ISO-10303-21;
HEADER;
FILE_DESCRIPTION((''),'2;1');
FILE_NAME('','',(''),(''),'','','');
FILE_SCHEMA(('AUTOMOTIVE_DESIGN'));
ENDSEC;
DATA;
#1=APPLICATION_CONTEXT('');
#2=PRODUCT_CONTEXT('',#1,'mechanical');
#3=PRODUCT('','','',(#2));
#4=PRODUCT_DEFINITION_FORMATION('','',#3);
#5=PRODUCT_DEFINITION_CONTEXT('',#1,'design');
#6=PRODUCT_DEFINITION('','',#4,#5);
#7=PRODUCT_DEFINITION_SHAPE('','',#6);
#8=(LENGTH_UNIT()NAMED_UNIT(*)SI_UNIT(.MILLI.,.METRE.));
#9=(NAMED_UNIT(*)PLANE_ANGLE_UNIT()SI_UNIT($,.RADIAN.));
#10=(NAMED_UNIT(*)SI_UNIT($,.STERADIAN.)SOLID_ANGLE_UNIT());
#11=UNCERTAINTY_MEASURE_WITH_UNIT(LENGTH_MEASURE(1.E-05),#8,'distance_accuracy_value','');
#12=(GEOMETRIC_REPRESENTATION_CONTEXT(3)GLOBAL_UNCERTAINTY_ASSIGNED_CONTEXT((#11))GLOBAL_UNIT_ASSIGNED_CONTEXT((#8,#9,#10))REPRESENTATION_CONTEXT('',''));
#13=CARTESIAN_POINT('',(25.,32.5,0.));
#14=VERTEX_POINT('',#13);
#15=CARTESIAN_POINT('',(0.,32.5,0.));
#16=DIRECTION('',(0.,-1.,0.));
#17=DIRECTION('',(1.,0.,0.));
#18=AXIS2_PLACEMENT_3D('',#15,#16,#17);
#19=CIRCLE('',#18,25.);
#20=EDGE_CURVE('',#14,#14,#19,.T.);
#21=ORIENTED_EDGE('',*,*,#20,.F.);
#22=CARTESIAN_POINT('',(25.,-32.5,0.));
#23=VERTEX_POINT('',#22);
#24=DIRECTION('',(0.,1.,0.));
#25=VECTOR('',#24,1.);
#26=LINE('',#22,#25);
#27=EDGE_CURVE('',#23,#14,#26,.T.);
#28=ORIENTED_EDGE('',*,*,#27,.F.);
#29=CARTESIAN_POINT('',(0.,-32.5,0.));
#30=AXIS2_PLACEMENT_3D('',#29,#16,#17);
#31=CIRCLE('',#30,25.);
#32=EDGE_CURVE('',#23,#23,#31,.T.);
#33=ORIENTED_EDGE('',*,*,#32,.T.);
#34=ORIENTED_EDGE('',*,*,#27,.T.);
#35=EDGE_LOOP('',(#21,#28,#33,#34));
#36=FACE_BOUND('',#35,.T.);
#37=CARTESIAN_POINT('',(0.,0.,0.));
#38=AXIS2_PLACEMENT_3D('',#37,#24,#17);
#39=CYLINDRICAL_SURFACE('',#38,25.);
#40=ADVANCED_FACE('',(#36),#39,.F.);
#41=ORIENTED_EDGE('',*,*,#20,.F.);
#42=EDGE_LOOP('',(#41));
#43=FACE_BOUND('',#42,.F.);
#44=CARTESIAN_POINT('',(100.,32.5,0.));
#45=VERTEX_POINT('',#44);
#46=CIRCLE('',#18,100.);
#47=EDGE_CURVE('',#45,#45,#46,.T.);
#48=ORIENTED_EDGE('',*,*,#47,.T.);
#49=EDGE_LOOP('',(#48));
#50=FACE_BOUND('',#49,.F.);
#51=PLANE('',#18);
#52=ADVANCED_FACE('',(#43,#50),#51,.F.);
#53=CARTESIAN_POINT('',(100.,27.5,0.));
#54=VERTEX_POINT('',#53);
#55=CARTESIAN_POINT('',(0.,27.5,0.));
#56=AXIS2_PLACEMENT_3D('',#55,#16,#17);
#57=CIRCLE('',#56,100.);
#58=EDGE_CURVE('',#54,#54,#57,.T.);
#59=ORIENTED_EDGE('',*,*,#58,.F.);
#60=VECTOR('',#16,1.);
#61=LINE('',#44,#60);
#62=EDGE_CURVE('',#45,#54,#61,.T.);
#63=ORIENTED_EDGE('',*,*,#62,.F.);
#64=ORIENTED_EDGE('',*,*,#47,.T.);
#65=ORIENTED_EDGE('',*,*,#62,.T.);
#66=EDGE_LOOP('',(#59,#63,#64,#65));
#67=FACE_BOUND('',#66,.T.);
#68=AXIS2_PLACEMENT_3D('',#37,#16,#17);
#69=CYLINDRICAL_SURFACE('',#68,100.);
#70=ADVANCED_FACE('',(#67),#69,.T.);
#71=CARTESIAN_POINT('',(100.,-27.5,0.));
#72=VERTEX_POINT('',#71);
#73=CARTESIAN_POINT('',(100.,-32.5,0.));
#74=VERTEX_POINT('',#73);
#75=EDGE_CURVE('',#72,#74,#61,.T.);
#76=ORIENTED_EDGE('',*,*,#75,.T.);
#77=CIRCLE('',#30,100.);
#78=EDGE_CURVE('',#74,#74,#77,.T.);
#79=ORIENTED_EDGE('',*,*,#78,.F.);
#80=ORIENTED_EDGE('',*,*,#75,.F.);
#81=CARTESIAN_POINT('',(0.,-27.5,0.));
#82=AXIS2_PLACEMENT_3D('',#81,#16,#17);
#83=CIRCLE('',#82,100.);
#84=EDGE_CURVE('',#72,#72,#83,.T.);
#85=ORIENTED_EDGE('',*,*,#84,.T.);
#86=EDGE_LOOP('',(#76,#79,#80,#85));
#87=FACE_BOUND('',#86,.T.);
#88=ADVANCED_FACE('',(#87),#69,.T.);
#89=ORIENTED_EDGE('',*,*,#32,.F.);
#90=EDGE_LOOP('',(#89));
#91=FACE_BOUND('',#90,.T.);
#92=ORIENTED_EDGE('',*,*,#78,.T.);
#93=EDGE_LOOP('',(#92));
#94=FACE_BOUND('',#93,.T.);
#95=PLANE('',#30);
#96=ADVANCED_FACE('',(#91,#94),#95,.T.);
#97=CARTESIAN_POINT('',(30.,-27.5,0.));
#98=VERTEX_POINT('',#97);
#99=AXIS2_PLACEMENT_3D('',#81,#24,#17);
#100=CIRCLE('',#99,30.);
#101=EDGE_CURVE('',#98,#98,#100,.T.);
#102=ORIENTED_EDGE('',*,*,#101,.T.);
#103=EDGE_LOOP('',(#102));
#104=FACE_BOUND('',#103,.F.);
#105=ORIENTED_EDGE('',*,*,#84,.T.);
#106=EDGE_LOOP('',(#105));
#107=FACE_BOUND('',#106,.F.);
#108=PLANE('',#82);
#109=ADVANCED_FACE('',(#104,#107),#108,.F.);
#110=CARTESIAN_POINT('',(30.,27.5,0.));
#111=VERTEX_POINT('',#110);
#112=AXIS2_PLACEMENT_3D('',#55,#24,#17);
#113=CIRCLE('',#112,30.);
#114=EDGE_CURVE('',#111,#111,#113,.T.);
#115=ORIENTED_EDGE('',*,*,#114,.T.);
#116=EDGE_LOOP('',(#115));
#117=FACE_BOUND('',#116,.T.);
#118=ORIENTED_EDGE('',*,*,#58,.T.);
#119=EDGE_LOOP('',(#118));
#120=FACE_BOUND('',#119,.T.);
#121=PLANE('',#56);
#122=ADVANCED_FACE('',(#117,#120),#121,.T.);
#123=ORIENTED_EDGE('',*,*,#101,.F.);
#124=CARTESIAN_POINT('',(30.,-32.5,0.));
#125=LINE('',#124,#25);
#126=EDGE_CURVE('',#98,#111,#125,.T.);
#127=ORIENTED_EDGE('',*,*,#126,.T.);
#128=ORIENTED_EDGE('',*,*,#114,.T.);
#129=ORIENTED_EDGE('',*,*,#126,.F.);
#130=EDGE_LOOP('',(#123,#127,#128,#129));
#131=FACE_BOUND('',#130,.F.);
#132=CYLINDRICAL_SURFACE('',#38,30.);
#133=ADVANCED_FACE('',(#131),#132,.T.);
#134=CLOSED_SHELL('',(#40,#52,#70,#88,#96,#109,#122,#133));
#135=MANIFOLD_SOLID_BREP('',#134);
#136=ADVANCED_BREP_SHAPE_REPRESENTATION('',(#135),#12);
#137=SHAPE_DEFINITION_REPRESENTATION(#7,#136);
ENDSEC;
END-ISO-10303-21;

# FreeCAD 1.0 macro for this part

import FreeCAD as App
import Part
import Sketcher
Q = App.Units.Quantity


def faces_at(feature, points):
    """Names of the faces that lie closest to the given points."""
    faces = feature.Shape.Faces
    near = lambda p: min(range(len(faces)), key=lambda i: faces[i].distToShape(Part.Vertex(*p))[0])
    return sorted({f"Face{near(p) + 1}" for p in points})

doc = App.newDocument("Part")
params = doc.addObject("Spreadsheet::Sheet", "Params")
for row, (alias, value) in enumerate([
    ("sketch1_diameter", "200 mm"),
    ("sketch1_diameter2", "50 mm"),
    ("pad1_length", "65 mm"),
    ("thickness_wall", "5 mm"),
], start=1):
    params.set(f"A{row}", alias)
    params.set(f"B{row}", "=" + value)
    params.setAlias(f"B{row}", alias)

body = doc.addObject("PartDesign::Body", "Body")

# Sketch on XZ plane
sketch1 = body.newObject("Sketcher::SketchObject", "Sketch")
sketch1.AttachmentSupport = (doc.getObject("XZ_Plane"), [""])
sketch1.MapMode = "FlatFace"
sketch1.addGeometry([
    Part.Circle(App.Vector(0, 0, 0), App.Vector(0, 0, 1), 100),
    Part.Circle(App.Vector(0, 0, 0), App.Vector(0, 0, 1), 25),
], False)
sketch1.addConstraint([
    Sketcher.Constraint("Coincident", 0, 3, -1, 1),
    Sketcher.Constraint("Coincident", 1, 3, -1, 1),
    Sketcher.Constraint("Diameter", 0, Q("200 mm")),
    Sketcher.Constraint("Diameter", 1, Q("50 mm")),
])
sketch1.setExpression("Constraints[2]", "Params.sketch1_diameter")
sketch1.setExpression("Constraints[3]", "Params.sketch1_diameter2")
pad1 = body.newObject("PartDesign::Pad", "Pad")
pad1.Profile = sketch1
pad1.setExpression("Length", "Params.pad1_length")
pad1.Midplane = True
doc.recompute()

thickness = body.newObject("PartDesign::Thickness", "Thickness")
thickness.Base = (pad1, faces_at(pad1, [(-100, 0, 0)]))
thickness.setExpression("Value", "Params.thickness_wall")
thickness.Reversed = True
thickness.Join = "Arc"

doc.recompute()
